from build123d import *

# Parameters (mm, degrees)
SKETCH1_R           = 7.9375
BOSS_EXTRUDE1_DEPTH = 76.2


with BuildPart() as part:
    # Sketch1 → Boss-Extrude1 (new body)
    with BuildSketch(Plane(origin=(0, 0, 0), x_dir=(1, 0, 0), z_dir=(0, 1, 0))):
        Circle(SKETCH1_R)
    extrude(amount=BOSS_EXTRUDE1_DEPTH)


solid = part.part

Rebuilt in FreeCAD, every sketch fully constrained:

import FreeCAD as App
import Part
import Sketcher
from FreeCAD import Vector
Q = App.Units.Quantity

doc = App.newDocument("Part")
params = doc.addObject("Spreadsheet::Sheet", "Params")
for row, (alias, value) in enumerate([
    ("sketch1_diameter", "0.625 in"),
    ("pad1_length", "3 in"),
], start=1):
    params.set(f"A{row}", alias)
    params.set(f"B{row}", "=" + value)
    params.setAlias(f"B{row}", alias)

body = doc.addObject("PartDesign::Body", "Body")

sketch1 = doc.addObject("Sketcher::SketchObject", "Sketch")
body.addObject(sketch1)
sketch1.AttachmentSupport = (doc.XZ_Plane, [""])
sketch1.MapMode = "FlatFace"
sketch1.addGeometry(Part.Circle(Vector(0, 0, 0), Vector(0, 0, 1), 8), False)
sketch1.addConstraint([
    Sketcher.Constraint("Coincident", 0, 3, -1, 1),
    Sketcher.Constraint("Diameter", 0, Q("0.625 in")),
])
sketch1.setExpression("Constraints[1]", "Params.sketch1_diameter")
pad1 = doc.addObject("PartDesign::Pad", "Pad")
body.addObject(pad1)
pad1.Profile = sketch1
pad1.setExpression("Length", "Params.pad1_length")
pad1.Reversed = True

doc.recompute()
